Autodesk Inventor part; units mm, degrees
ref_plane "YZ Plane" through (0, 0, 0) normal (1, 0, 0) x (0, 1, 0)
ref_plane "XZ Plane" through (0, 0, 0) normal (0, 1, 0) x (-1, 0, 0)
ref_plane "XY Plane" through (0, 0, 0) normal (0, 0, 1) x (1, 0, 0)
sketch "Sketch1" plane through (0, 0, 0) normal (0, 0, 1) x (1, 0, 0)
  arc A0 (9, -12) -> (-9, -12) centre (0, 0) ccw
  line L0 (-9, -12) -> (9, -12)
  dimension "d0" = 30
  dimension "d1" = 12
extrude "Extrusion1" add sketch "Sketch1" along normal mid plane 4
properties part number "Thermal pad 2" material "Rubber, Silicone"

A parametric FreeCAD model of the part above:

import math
import FreeCAD as App
import Part
import Sketcher

V = App.Vector
Q = App.Units.Quantity

doc = App.newDocument("Part")
body = doc.addObject("PartDesign::Body", "Body")

# Sketch on XY plane
sketch1 = doc.addObject("Sketcher::SketchObject", "Sketch")
body.addObject(sketch1)
sketch1.AttachmentSupport = (doc.XY_Plane, [""])
sketch1.MapMode = "FlatFace"
sketch1.addGeometry([
    Part.LineSegment(V(-9, -12, 0), V(9, -12, 0)),
    Part.ArcOfCircle(Part.Circle(V(0, 0, 0), V(0, 0, 1), 15), math.radians(-53), math.radians(233)),
], False)
sketch1.addConstraint([
    Sketcher.Constraint("Coincident", 0, 1, 1, 2),
    Sketcher.Constraint("Coincident", 1, 1, 0, 2),
    Sketcher.Constraint("Horizontal", 0),
    Sketcher.Constraint("Coincident", 1, 3, -1, 1),
    Sketcher.Constraint("Radius", 1, Q("15 mm")),
    Sketcher.Constraint("DistanceY", 0, 1, -1, 1, Q("12 mm")),
])
pad1 = doc.addObject("PartDesign::Pad", "Pad")
body.addObject(pad1)
pad1.Profile = sketch1
pad1.Length = 4
pad1.Midplane = True

doc.recompute()
